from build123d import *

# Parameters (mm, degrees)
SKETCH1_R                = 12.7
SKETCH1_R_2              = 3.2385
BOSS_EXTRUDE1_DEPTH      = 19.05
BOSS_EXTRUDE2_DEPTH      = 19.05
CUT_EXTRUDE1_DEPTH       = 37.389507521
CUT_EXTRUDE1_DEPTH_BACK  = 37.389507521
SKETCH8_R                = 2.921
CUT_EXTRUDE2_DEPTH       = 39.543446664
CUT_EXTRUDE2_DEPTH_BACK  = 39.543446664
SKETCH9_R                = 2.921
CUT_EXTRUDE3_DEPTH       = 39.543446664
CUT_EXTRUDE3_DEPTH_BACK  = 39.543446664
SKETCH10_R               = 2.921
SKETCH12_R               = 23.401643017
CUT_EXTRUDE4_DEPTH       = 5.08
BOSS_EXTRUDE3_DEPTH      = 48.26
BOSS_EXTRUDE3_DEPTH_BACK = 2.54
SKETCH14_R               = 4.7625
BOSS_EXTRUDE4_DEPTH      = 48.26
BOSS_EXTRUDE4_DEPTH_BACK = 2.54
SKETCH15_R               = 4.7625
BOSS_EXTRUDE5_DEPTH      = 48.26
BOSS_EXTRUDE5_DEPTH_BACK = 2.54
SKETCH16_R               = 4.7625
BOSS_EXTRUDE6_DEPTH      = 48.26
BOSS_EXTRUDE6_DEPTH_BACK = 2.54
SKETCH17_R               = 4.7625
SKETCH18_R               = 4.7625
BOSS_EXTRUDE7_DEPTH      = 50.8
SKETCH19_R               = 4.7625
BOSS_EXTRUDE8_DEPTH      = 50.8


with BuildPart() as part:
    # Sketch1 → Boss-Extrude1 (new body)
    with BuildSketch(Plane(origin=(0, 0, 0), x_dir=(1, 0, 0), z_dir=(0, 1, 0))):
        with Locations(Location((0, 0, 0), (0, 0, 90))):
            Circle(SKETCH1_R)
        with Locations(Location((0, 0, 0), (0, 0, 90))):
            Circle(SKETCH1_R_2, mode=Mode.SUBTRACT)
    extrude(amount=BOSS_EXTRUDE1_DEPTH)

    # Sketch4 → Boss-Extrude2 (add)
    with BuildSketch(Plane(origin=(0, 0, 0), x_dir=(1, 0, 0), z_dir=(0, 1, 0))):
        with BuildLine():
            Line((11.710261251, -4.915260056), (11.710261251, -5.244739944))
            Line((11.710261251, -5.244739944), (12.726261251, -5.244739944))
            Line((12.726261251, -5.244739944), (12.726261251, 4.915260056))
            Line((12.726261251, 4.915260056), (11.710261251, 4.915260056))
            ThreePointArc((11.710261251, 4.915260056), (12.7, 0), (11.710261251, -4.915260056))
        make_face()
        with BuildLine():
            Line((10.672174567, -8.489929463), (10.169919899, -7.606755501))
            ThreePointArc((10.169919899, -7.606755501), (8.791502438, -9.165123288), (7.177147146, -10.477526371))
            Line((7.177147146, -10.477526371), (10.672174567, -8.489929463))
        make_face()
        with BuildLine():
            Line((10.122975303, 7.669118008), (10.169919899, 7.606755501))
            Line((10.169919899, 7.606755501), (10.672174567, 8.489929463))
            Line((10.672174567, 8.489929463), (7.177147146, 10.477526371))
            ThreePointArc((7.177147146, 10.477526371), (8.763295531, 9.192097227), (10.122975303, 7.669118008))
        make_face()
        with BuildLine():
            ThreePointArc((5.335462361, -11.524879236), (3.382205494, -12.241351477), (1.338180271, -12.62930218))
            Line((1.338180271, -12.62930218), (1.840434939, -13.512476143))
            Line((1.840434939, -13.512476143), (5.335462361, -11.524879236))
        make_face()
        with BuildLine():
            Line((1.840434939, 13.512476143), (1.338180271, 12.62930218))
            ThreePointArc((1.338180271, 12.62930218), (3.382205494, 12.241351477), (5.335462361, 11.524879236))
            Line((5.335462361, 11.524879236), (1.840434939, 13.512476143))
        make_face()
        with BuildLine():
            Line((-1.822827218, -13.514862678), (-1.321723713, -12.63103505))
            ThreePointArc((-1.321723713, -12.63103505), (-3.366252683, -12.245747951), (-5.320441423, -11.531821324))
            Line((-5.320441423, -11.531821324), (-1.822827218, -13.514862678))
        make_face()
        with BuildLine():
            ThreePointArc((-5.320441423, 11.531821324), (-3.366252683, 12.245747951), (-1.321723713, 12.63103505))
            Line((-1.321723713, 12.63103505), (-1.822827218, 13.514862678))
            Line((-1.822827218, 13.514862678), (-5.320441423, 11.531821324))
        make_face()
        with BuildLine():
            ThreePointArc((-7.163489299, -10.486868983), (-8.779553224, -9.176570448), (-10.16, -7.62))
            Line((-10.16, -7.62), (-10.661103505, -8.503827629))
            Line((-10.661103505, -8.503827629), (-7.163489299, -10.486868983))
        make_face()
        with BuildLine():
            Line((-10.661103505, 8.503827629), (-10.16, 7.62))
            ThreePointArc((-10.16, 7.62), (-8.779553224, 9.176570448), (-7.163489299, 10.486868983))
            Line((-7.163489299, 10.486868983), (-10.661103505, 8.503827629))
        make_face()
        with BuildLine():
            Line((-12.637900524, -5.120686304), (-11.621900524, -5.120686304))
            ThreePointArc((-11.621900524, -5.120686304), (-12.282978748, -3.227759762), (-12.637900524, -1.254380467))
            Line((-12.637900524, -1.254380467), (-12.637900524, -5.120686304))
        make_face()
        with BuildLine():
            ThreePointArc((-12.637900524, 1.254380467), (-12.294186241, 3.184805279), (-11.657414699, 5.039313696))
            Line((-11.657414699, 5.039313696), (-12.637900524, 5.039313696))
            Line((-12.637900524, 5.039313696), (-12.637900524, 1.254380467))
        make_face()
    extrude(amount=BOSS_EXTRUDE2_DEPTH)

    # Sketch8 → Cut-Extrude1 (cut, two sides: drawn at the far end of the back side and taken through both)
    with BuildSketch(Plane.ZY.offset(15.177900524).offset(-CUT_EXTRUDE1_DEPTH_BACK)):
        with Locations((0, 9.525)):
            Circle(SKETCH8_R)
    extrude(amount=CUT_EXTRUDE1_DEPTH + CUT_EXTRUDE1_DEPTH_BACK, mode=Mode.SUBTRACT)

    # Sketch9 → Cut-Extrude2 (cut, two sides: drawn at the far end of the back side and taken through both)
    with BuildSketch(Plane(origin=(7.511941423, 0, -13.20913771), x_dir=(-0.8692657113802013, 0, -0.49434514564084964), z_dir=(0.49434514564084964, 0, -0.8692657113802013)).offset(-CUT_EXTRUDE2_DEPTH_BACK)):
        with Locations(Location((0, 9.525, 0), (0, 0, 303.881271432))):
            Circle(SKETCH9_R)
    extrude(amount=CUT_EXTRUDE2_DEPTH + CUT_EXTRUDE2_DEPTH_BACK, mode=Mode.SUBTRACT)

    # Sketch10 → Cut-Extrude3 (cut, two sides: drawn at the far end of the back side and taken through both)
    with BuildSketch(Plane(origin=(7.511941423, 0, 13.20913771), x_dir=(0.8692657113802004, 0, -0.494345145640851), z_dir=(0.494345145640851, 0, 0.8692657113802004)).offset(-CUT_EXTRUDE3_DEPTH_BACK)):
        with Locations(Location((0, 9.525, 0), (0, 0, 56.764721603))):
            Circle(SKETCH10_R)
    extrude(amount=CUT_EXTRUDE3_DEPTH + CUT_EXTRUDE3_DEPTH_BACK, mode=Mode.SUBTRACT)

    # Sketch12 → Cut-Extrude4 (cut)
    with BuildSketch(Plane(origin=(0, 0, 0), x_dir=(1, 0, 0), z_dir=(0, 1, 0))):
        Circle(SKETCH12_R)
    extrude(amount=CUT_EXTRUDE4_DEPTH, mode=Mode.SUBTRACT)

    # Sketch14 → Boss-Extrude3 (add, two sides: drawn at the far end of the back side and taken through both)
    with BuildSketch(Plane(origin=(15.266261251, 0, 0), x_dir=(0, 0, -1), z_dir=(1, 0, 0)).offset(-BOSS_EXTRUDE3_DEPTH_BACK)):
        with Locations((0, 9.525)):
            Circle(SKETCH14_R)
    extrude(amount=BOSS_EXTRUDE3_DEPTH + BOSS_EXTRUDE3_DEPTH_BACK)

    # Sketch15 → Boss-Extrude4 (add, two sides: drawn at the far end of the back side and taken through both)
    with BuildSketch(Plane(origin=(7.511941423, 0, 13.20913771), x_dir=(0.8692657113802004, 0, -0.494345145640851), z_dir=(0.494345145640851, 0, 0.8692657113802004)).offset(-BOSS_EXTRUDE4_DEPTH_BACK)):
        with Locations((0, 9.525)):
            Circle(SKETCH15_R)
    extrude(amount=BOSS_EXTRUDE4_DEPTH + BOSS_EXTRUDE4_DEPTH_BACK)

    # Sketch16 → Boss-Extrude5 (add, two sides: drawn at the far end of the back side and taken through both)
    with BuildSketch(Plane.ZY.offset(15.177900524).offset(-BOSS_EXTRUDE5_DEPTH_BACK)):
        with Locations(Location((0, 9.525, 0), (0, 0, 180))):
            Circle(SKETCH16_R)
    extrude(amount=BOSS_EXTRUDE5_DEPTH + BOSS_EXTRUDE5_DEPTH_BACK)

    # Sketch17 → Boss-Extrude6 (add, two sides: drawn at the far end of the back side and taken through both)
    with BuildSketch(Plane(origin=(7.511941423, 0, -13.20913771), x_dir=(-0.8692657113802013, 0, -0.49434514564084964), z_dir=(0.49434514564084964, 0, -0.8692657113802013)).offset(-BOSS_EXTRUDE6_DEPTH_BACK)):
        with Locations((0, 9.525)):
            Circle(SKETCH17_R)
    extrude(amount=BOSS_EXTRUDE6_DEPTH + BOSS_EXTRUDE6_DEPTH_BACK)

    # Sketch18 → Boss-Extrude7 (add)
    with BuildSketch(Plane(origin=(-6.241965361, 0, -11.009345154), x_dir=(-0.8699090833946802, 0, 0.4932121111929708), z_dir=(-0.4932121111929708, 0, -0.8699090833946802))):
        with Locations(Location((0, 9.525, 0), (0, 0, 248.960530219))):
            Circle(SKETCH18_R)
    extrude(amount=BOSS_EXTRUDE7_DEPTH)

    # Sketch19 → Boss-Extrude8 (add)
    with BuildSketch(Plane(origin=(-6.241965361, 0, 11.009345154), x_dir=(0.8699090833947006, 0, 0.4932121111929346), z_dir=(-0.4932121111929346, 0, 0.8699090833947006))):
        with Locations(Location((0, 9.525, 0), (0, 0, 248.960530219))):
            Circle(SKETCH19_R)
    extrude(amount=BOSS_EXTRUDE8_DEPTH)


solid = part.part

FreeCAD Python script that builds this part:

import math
import FreeCAD as App
import Part
import Sketcher
from FreeCAD import Vector
Q = App.Units.Quantity

doc = App.newDocument("Part")
body = doc.addObject("PartDesign::Body", "Body")

# Sketch on XZ plane
sketch1 = doc.addObject("Sketcher::SketchObject", "Sketch")
body.addObject(sketch1)
sketch1.AttachmentSupport = (doc.XZ_Plane, [""])
sketch1.MapMode = "FlatFace"
sketch1.addGeometry([
    Part.Circle(Vector(0, 0, 0), Vector(0, 0, 1), 12.7),
    Part.Circle(Vector(0, 0, 0), Vector(0, 0, 1), 3.2385),
], False)
sketch1.addConstraint([
    Sketcher.Constraint("Coincident", 0, 3, -1, 1),
    Sketcher.Constraint("Coincident", 1, 3, -1, 1),
    Sketcher.Constraint("Diameter", 0, Q("1 in")),
    Sketcher.Constraint("Diameter", 1, Q("0.255 in")),
])
pad1 = doc.addObject("PartDesign::Pad", "Pad")
body.addObject(pad1)
pad1.Profile = sketch1
pad1.Length = Q("0.75 in")
pad1.Reversed = True

# Sketch on XZ plane
sketch2 = doc.addObject("Sketcher::SketchObject", "Sketch001")
body.addObject(sketch2)
sketch2.AttachmentSupport = (doc.XZ_Plane, [""])
sketch2.MapMode = "FlatFace"
sketch2.addGeometry([
    Part.LineSegment(Vector(11.710261, 4.91526, 0), Vector(11.710261, 5.24474, 0)),  # 0
    Part.LineSegment(Vector(11.710261, 5.24474, 0), Vector(12.726261, 5.24474, 0)),  # 1
    Part.LineSegment(Vector(12.726261, 5.24474, 0), Vector(12.726261, -4.91526, 0)),  # 2
    Part.LineSegment(Vector(12.726261, -4.91526, 0), Vector(11.710261, -4.91526, 0)),  # 3
    Part.ArcOfCircle(Part.Circle(Vector(0, 0, 0), Vector(0, 0, 1), 12.7), math.radians(-22.769721), math.radians(22.769721)),  # 4
    Part.LineSegment(Vector(10.672175, 8.489929, 0), Vector(10.16992, 7.606756, 0)),  # 5
    Part.ArcOfCircle(Part.Circle(Vector(0, 0, 0), Vector(0, 0, 1), 12.7), math.radians(36.795244), math.radians(55.588702)),  # 6
    Part.LineSegment(Vector(7.177147, 10.477526, 0), Vector(10.672175, 8.489929, 0)),  # 7
    Part.LineSegment(Vector(10.122975, -7.669118, 0), Vector(10.16992, -7.606756, 0)),  # 8
    Part.LineSegment(Vector(10.16992, -7.606756, 0), Vector(10.672175, -8.489929, 0)),  # 9
    Part.LineSegment(Vector(10.672175, -8.489929, 0), Vector(7.177147, -10.477526, 0)),  # 10
    Part.ArcOfCircle(Part.Circle(Vector(0, 0, 0), Vector(0, 0, 1), 12.7), math.radians(-55.588702), math.radians(-37.147396)),  # 11
    Part.ArcOfCircle(Part.Circle(Vector(0, 0, 0), Vector(0, 0, 1), 12.7), math.radians(65.158143), math.radians(83.951601)),  # 12
    Part.LineSegment(Vector(1.33818, 12.629302, 0), Vector(1.840435, 13.512476, 0)),  # 13
    Part.LineSegment(Vector(1.840435, 13.512476, 0), Vector(5.335462, 11.524879, 0)),  # 14
    Part.LineSegment(Vector(1.840435, -13.512476, 0), Vector(1.33818, -12.629302, 0)),  # 15
    Part.ArcOfCircle(Part.Circle(Vector(0, 0, 0), Vector(0, 0, 1), 12.7), math.radians(-83.951601), math.radians(-65.158143)),  # 16
    Part.LineSegment(Vector(5.335462, -11.524879, 0), Vector(1.840435, -13.512476, 0)),  # 17
    Part.LineSegment(Vector(-1.822827, 13.514863, 0), Vector(-1.321724, 12.631035, 0)),  # 18
    Part.ArcOfCircle(Part.Circle(Vector(0, 0, 0), Vector(0, 0, 1), 12.7), math.radians(95.973745), math.radians(114.767204)),  # 19
    Part.LineSegment(Vector(-5.320441, 11.531821, 0), Vector(-1.822827, 13.514863, 0)),  # 20
    Part.ArcOfCircle(Part.Circle(Vector(0, 0, 0), Vector(0, 0, 1), 12.7), math.radians(-114.767204), math.radians(-95.973745)),  # 21
    Part.LineSegment(Vector(-1.321724, -12.631035, 0), Vector(-1.822827, -13.514863, 0)),  # 22
    Part.LineSegment(Vector(-1.822827, -13.514863, 0), Vector(-5.320441, -11.531821, 0)),  # 23
    Part.ArcOfCircle(Part.Circle(Vector(0, 0, 0), Vector(0, 0, 1), 12.7), math.radians(124.336644), math.radians(143.130102)),  # 24
    Part.LineSegment(Vector(-10.16, 7.62, 0), Vector(-10.661104, 8.503828, 0)),  # 25
    Part.LineSegment(Vector(-10.661104, 8.503828, 0), Vector(-7.163489, 10.486869, 0)),  # 26
    Part.LineSegment(Vector(-10.661104, -8.503828, 0), Vector(-10.16, -7.62, 0)),  # 27
    Part.ArcOfCircle(Part.Circle(Vector(0, 0, 0), Vector(0, 0, 1), 12.7), math.radians(-143.130102), math.radians(-124.336644)),  # 28
    Part.LineSegment(Vector(-7.163489, -10.486869, 0), Vector(-10.661104, -8.503828, 0)),  # 29
    Part.LineSegment(Vector(-12.637901, 5.120686, 0), Vector(-11.621901, 5.120686, 0)),  # 30
    Part.ArcOfCircle(Part.Circle(Vector(0, 0, 0), Vector(0, 0, 1), 12.7), math.radians(156.221393), math.radians(174.331647)),  # 31
    Part.LineSegment(Vector(-12.637901, 1.25438, 0), Vector(-12.637901, 5.120686, 0)),  # 32
    Part.ArcOfCircle(Part.Circle(Vector(0, 0, 0), Vector(0, 0, 1), 12.7), math.radians(-174.331647), math.radians(-156.621945)),  # 33
    Part.LineSegment(Vector(-11.657415, -5.039314, 0), Vector(-12.637901, -5.039314, 0)),  # 34
    Part.LineSegment(Vector(-12.637901, -5.039314, 0), Vector(-12.637901, -1.25438, 0)),  # 35
], False)
sketch2.addConstraint([
    Sketcher.Constraint("Coincident", 0, 2, 1, 1),
    Sketcher.Constraint("Coincident", 1, 2, 2, 1),
    Sketcher.Constraint("Coincident", 2, 2, 3, 1),
    Sketcher.Constraint("Coincident", 3, 2, 4, 1),
    Sketcher.Constraint("Coincident", 4, 2, 0, 1),
    Sketcher.Constraint("Coincident", 5, 2, 6, 1),
    Sketcher.Constraint("Coincident", 6, 2, 7, 1),
    Sketcher.Constraint("Coincident", 7, 2, 5, 1),
    Sketcher.Constraint("Coincident", 8, 2, 9, 1),
    Sketcher.Constraint("Coincident", 9, 2, 10, 1),
    Sketcher.Constraint("Coincident", 10, 2, 11, 1),
    Sketcher.Constraint("Coincident", 11, 2, 8, 1),
    Sketcher.Constraint("Coincident", 12, 2, 13, 1),
    Sketcher.Constraint("Coincident", 13, 2, 14, 1),
    Sketcher.Constraint("Coincident", 14, 2, 12, 1),
    Sketcher.Constraint("Coincident", 15, 2, 16, 1),
    Sketcher.Constraint("Coincident", 16, 2, 17, 1),
    Sketcher.Constraint("Coincident", 17, 2, 15, 1),
    Sketcher.Constraint("Coincident", 18, 2, 19, 1),
    Sketcher.Constraint("Coincident", 19, 2, 20, 1),
    Sketcher.Constraint("Coincident", 20, 2, 18, 1),
    Sketcher.Constraint("Coincident", 21, 2, 22, 1),
    Sketcher.Constraint("Coincident", 22, 2, 23, 1),
    Sketcher.Constraint("Coincident", 23, 2, 21, 1),
    Sketcher.Constraint("Coincident", 24, 2, 25, 1),
    Sketcher.Constraint("Coincident", 25, 2, 26, 1),
    Sketcher.Constraint("Coincident", 26, 2, 24, 1),
    Sketcher.Constraint("Coincident", 27, 2, 28, 1),
    Sketcher.Constraint("Coincident", 28, 2, 29, 1),
    Sketcher.Constraint("Coincident", 29, 2, 27, 1),
    Sketcher.Constraint("Coincident", 30, 2, 31, 1),
    Sketcher.Constraint("Coincident", 31, 2, 32, 1),
    Sketcher.Constraint("Coincident", 32, 2, 30, 1),
    Sketcher.Constraint("Coincident", 33, 2, 34, 1),
    Sketcher.Constraint("Coincident", 34, 2, 35, 1),
    Sketcher.Constraint("Coincident", 35, 2, 33, 1),
    Sketcher.Constraint("Vertical", 0),
    Sketcher.Constraint("Horizontal", 1),
    Sketcher.Constraint("Vertical", 2),
    Sketcher.Constraint("Horizontal", 3),
    Sketcher.Constraint("Horizontal", 30),
    Sketcher.Constraint("Vertical", 32),
    Sketcher.Constraint("Horizontal", 34),
    Sketcher.Constraint("Vertical", 35),
    Sketcher.Constraint("Coincident", 4, 3, -1, 1),
    Sketcher.Constraint("Coincident", 6, 3, -1, 1),
    Sketcher.Constraint("Coincident", 11, 3, -1, 1),
    Sketcher.Constraint("Coincident", 12, 3, -1, 1),
    Sketcher.Constraint("Coincident", 16, 3, -1, 1),
    Sketcher.Constraint("Coincident", 19, 3, -1, 1),
    Sketcher.Constraint("Coincident", 21, 3, -1, 1),
    Sketcher.Constraint("Coincident", 24, 3, -1, 1),
    Sketcher.Constraint("Coincident", 28, 3, -1, 1),
    Sketcher.Constraint("Coincident", 31, 3, -1, 1),
    Sketcher.Constraint("Coincident", 33, 3, -1, 1),
    Sketcher.Constraint("Equal", 4, 6),
    Sketcher.Constraint("Equal", 6, 11),
    Sketcher.Constraint("Equal", 11, 12),
    Sketcher.Constraint("Equal", 12, 16),
    Sketcher.Constraint("Equal", 16, 19),
    Sketcher.Constraint("Equal", 19, 21),
    Sketcher.Constraint("Equal", 21, 24),
    Sketcher.Constraint("Equal", 24, 28),
    Sketcher.Constraint("Equal", 28, 31),
    Sketcher.Constraint("Equal", 31, 33),
    Sketcher.Constraint("Symmetric", 5, 2, 8, 2, -1),
    Sketcher.Constraint("Symmetric", 7, 2, 9, 2, -1),
    Sketcher.Constraint("Symmetric", 13, 2, 17, 2, -1),
    Sketcher.Constraint("Symmetric", 20, 2, 22, 2, -1),
    Sketcher.Constraint("Symmetric", 25, 2, 29, 2, -1),
    Sketcher.Constraint("Perpendicular", 5, 7),
    Sketcher.Constraint("Perpendicular", 9, 10),
    Sketcher.Constraint("Perpendicular", 7, 13),
    Sketcher.Constraint("Perpendicular", 13, 14),
    Sketcher.Constraint("Perpendicular", 10, 15),
    Sketcher.Constraint("Perpendicular", 15, 17),
    Sketcher.Constraint("Perpendicular", 18, 20),
    Sketcher.Constraint("Perpendicular", 22, 23),
    Sketcher.Constraint("Perpendicular", 20, 25),
    Sketcher.Constraint("Perpendicular", 25, 26),
    Sketcher.Constraint("Perpendicular", 23, 27),
    Sketcher.Constraint("Perpendicular", 27, 29),
    Sketcher.Constraint("Vertical", 0, 2, 3, 2),
    Sketcher.Constraint("Vertical", 19, 2, 23, 2),
    Sketcher.Constraint("Vertical", 32, 2, 34, 2),
    Sketcher.Constraint("Equal", 3, 30),
    Sketcher.Constraint("Equal", 9, 13),
    Sketcher.Constraint("Equal", 10, 14),
    Sketcher.Constraint("Equal", 15, 18),
    Sketcher.Constraint("Equal", 17, 20),
    Sketcher.Constraint("Equal", 22, 25),
    Sketcher.Constraint("Equal", 23, 26),
    Sketcher.Constraint("Radius", 4, Q("0.5 in")),
    Sketcher.Constraint("DistanceY", 2, 2, 2, 1, Q("0.4 in")),
    Sketcher.Constraint("DistanceX", 1, 1, 1, 2, Q("0.04 in")),
    Sketcher.Constraint("DistanceX", 24, 2, -1, 1, Q("0.4 in")),
    Sketcher.Constraint("Distance", 5, Q("0.04 in")),
    Sketcher.Constraint("DistanceY", 0, 1, 0, 2, 0.32948),
    Sketcher.Constraint("DistanceX", 30, 2, -1, 1, 11.621901),
    Sketcher.Constraint("DistanceX", 11, 2, 9, 2, 0.549199),
    Sketcher.Constraint("DistanceX", 21, 2, 11, 2, 11.444699),
    Sketcher.Constraint("DistanceX", 34, 2, 34, 1, 0.980486),
    Sketcher.Constraint("DistanceX", -1, 1, 5, 2, 10.16992),
])
pad2 = doc.addObject("PartDesign::Pad", "Pad001")
body.addObject(pad2)
pad2.Profile = sketch2
pad2.Length = Q("0.75 in")
pad2.Reversed = True

# Sketch on YZ plane
sketch3 = doc.addObject("Sketcher::SketchObject", "Sketch002")
body.addObject(sketch3)
sketch3.AttachmentSupport = (doc.YZ_Plane, [""])
sketch3.MapMode = "FlatFace"
sketch3.AttachmentOffset = App.Placement(Vector(0, 0, -15.177901), App.Rotation())
sketch3.addGeometry(Part.Circle(Vector(9.525, 0, 0), Vector(0, 0, 1), 2.921), False)
sketch3.addConstraint([
    Sketcher.Constraint("PointOnObject", 0, 3, -1),
    Sketcher.Constraint("Diameter", 0, Q("0.23 in")),
    Sketcher.Constraint("DistanceX", -1, 1, 0, 3, Q("0.375 in")),
])
pocket1 = doc.addObject("PartDesign::Pocket", "Pocket")
body.addObject(pocket1)
pocket1.Profile = sketch3
pocket1.Type = "ThroughAll"
pocket1.Midplane = True

# Sketch on an angled plane
sketch4 = doc.addObject("Sketcher::SketchObject", "Sketch003")
body.addObject(sketch4)
sketch4.Placement = App.Placement(Vector(7.511941, 0, -13.209138), App.Rotation(Vector(-0.869265711, 0, -0.494345146), Vector(0, 1, 0), Vector(0.494345146, 0, -0.869265711), "ZXY"))
sketch4.addGeometry(Part.Circle(Vector(0, 9.525, 0), Vector(0, 0, 1), 2.921), False)
sketch4.addConstraint([
    Sketcher.Constraint("PointOnObject", 0, 3, -2),
    Sketcher.Constraint("Diameter", 0, Q("0.23 in")),
    Sketcher.Constraint("DistanceY", -1, 1, 0, 3, Q("0.375 in")),
])
pocket2 = doc.addObject("PartDesign::Pocket", "Pocket001")
body.addObject(pocket2)
pocket2.Profile = sketch4
pocket2.Type = "ThroughAll"
pocket2.Midplane = True

# Sketch on an angled plane
sketch5 = doc.addObject("Sketcher::SketchObject", "Sketch004")
body.addObject(sketch5)
sketch5.Placement = App.Placement(Vector(7.511941, 0, 13.209138), App.Rotation(Vector(0.869265711, 0, -0.494345146), Vector(0, 1, 0), Vector(0.494345146, 0, 0.869265711), "ZXY"))
sketch5.addGeometry(Part.Circle(Vector(0, 9.525, 0), Vector(0, 0, 1), 2.921), False)
sketch5.addConstraint([
    Sketcher.Constraint("PointOnObject", 0, 3, -2),
    Sketcher.Constraint("Diameter", 0, Q("0.23 in")),
    Sketcher.Constraint("DistanceY", -1, 1, 0, 3, Q("0.375 in")),
])
pocket3 = doc.addObject("PartDesign::Pocket", "Pocket002")
body.addObject(pocket3)
pocket3.Profile = sketch5
pocket3.Type = "ThroughAll"
pocket3.Midplane = True

# Sketch on XZ plane
sketch6 = doc.addObject("Sketcher::SketchObject", "Sketch005")
body.addObject(sketch6)
sketch6.AttachmentSupport = (doc.XZ_Plane, [""])
sketch6.MapMode = "FlatFace"
sketch6.addGeometry(Part.Circle(Vector(0, 0, 0), Vector(0, 0, 1), 23.401643), False)
sketch6.addConstraint([
    Sketcher.Constraint("Coincident", 0, 3, -1, 1),
    Sketcher.Constraint("Diameter", 0, 46.803286),
])
pocket4 = doc.addObject("PartDesign::Pocket", "Pocket003")
body.addObject(pocket4)
pocket4.Profile = sketch6
pocket4.Length = Q("0.2 in")

# Sketch on YZ plane
sketch7 = doc.addObject("Sketcher::SketchObject", "Sketch006")
body.addObject(sketch7)
sketch7.AttachmentSupport = (doc.YZ_Plane, [""])
sketch7.MapMode = "FlatFace"
sketch7.AttachmentOffset = App.Placement(Vector(0, 0, 15.266261), App.Rotation())
sketch7.addGeometry(Part.Circle(Vector(9.525, 0, 0), Vector(0, 0, 1), 4.7625), False)
sketch7.addConstraint([
    Sketcher.Constraint("PointOnObject", 0, 3, -1),
    Sketcher.Constraint("Diameter", 0, Q("0.375 in")),
    Sketcher.Constraint("DistanceX", -1, 1, 0, 3, Q("0.375 in")),
])
pad3 = doc.addObject("PartDesign::Pad", "Pad002")
body.addObject(pad3)
pad3.Profile = sketch7
pad3.Type = "TwoLengths"
pad3.Length = Q("1.9 in")
pad3.Length2 = Q("0.1 in")

# Sketch on an angled plane
sketch8 = doc.addObject("Sketcher::SketchObject", "Sketch007")
body.addObject(sketch8)
sketch8.Placement = App.Placement(Vector(7.511941, 0, 13.209138), App.Rotation(Vector(0.869265711, 0, -0.494345146), Vector(0, 1, 0), Vector(0.494345146, 0, 0.869265711), "ZXY"))
sketch8.addGeometry(Part.Circle(Vector(0, 9.525, 0), Vector(0, 0, 1), 4.7625), False)
sketch8.addConstraint([
    Sketcher.Constraint("PointOnObject", 0, 3, -2),
    Sketcher.Constraint("Diameter", 0, Q("0.375 in")),
    Sketcher.Constraint("DistanceY", -1, 1, 0, 3, Q("0.375 in")),
])
pad4 = doc.addObject("PartDesign::Pad", "Pad003")
body.addObject(pad4)
pad4.Profile = sketch8
pad4.Type = "TwoLengths"
pad4.Length = Q("1.9 in")
pad4.Length2 = Q("0.1 in")

# Sketch on YZ plane
sketch9 = doc.addObject("Sketcher::SketchObject", "Sketch008")
body.addObject(sketch9)
sketch9.AttachmentSupport = (doc.YZ_Plane, [""])
sketch9.MapMode = "FlatFace"
sketch9.AttachmentOffset = App.Placement(Vector(0, 0, -15.177901), App.Rotation())
sketch9.addGeometry(Part.Circle(Vector(9.525, 0, 0), Vector(0, 0, 1), 4.7625), False)
sketch9.addConstraint([
    Sketcher.Constraint("PointOnObject", 0, 3, -1),
    Sketcher.Constraint("Diameter", 0, Q("0.375 in")),
    Sketcher.Constraint("DistanceX", -1, 1, 0, 3, Q("0.375 in")),
])
pad5 = doc.addObject("PartDesign::Pad", "Pad004")
body.addObject(pad5)
pad5.Profile = sketch9
pad5.Type = "TwoLengths"
pad5.Length = Q("1.9 in")
pad5.Length2 = Q("0.1 in")
pad5.Reversed = True

# Sketch on an angled plane
sketch10 = doc.addObject("Sketcher::SketchObject", "Sketch009")
body.addObject(sketch10)
sketch10.Placement = App.Placement(Vector(7.511941, 0, -13.209138), App.Rotation(Vector(-0.869265711, 0, -0.494345146), Vector(0, 1, 0), Vector(0.494345146, 0, -0.869265711), "ZXY"))
sketch10.addGeometry(Part.Circle(Vector(0, 9.525, 0), Vector(0, 0, 1), 4.7625), False)
sketch10.addConstraint([
    Sketcher.Constraint("PointOnObject", 0, 3, -2),
    Sketcher.Constraint("Diameter", 0, Q("0.375 in")),
    Sketcher.Constraint("DistanceY", -1, 1, 0, 3, Q("0.375 in")),
])
pad6 = doc.addObject("PartDesign::Pad", "Pad005")
body.addObject(pad6)
pad6.Profile = sketch10
pad6.Type = "TwoLengths"
pad6.Length = Q("1.9 in")
pad6.Length2 = Q("0.1 in")

# Sketch on an angled plane
sketch11 = doc.addObject("Sketcher::SketchObject", "Sketch010")
body.addObject(sketch11)
sketch11.Placement = App.Placement(Vector(-6.241965, 0, -11.009345), App.Rotation(Vector(-0.869909083, 0, 0.493212111), Vector(0, 0.999999999, 0), Vector(-0.493212111, 0, -0.869909083), "ZXY"))
sketch11.addGeometry(Part.Circle(Vector(0, 9.525, 0), Vector(0, 0, 1), 4.7625), False)
sketch11.addConstraint([
    Sketcher.Constraint("PointOnObject", 0, 3, -2),
    Sketcher.Constraint("Diameter", 0, Q("0.375 in")),
    Sketcher.Constraint("DistanceY", -1, 1, 0, 3, Q("0.375 in")),
])
pad7 = doc.addObject("PartDesign::Pad", "Pad006")
body.addObject(pad7)
pad7.Profile = sketch11
pad7.Length = Q("2 in")

# Sketch on an angled plane
sketch12 = doc.addObject("Sketcher::SketchObject", "Sketch011")
body.addObject(sketch12)
sketch12.Placement = App.Placement(Vector(-6.241965, 0, 11.009345), App.Rotation(Vector(0.869909083, 0, 0.493212111), Vector(0, 0.999999999, 0), Vector(-0.493212111, 0, 0.869909083), "ZXY"))
sketch12.addGeometry(Part.Circle(Vector(0, 9.525, 0), Vector(0, 0, 1), 4.7625), False)
sketch12.addConstraint([
    Sketcher.Constraint("PointOnObject", 0, 3, -2),
    Sketcher.Constraint("Diameter", 0, Q("0.375 in")),
    Sketcher.Constraint("DistanceY", -1, 1, 0, 3, Q("0.375 in")),
])
pad8 = doc.addObject("PartDesign::Pad", "Pad007")
body.addObject(pad8)
pad8.Profile = sketch12
pad8.Length = Q("2 in")

doc.recompute()
